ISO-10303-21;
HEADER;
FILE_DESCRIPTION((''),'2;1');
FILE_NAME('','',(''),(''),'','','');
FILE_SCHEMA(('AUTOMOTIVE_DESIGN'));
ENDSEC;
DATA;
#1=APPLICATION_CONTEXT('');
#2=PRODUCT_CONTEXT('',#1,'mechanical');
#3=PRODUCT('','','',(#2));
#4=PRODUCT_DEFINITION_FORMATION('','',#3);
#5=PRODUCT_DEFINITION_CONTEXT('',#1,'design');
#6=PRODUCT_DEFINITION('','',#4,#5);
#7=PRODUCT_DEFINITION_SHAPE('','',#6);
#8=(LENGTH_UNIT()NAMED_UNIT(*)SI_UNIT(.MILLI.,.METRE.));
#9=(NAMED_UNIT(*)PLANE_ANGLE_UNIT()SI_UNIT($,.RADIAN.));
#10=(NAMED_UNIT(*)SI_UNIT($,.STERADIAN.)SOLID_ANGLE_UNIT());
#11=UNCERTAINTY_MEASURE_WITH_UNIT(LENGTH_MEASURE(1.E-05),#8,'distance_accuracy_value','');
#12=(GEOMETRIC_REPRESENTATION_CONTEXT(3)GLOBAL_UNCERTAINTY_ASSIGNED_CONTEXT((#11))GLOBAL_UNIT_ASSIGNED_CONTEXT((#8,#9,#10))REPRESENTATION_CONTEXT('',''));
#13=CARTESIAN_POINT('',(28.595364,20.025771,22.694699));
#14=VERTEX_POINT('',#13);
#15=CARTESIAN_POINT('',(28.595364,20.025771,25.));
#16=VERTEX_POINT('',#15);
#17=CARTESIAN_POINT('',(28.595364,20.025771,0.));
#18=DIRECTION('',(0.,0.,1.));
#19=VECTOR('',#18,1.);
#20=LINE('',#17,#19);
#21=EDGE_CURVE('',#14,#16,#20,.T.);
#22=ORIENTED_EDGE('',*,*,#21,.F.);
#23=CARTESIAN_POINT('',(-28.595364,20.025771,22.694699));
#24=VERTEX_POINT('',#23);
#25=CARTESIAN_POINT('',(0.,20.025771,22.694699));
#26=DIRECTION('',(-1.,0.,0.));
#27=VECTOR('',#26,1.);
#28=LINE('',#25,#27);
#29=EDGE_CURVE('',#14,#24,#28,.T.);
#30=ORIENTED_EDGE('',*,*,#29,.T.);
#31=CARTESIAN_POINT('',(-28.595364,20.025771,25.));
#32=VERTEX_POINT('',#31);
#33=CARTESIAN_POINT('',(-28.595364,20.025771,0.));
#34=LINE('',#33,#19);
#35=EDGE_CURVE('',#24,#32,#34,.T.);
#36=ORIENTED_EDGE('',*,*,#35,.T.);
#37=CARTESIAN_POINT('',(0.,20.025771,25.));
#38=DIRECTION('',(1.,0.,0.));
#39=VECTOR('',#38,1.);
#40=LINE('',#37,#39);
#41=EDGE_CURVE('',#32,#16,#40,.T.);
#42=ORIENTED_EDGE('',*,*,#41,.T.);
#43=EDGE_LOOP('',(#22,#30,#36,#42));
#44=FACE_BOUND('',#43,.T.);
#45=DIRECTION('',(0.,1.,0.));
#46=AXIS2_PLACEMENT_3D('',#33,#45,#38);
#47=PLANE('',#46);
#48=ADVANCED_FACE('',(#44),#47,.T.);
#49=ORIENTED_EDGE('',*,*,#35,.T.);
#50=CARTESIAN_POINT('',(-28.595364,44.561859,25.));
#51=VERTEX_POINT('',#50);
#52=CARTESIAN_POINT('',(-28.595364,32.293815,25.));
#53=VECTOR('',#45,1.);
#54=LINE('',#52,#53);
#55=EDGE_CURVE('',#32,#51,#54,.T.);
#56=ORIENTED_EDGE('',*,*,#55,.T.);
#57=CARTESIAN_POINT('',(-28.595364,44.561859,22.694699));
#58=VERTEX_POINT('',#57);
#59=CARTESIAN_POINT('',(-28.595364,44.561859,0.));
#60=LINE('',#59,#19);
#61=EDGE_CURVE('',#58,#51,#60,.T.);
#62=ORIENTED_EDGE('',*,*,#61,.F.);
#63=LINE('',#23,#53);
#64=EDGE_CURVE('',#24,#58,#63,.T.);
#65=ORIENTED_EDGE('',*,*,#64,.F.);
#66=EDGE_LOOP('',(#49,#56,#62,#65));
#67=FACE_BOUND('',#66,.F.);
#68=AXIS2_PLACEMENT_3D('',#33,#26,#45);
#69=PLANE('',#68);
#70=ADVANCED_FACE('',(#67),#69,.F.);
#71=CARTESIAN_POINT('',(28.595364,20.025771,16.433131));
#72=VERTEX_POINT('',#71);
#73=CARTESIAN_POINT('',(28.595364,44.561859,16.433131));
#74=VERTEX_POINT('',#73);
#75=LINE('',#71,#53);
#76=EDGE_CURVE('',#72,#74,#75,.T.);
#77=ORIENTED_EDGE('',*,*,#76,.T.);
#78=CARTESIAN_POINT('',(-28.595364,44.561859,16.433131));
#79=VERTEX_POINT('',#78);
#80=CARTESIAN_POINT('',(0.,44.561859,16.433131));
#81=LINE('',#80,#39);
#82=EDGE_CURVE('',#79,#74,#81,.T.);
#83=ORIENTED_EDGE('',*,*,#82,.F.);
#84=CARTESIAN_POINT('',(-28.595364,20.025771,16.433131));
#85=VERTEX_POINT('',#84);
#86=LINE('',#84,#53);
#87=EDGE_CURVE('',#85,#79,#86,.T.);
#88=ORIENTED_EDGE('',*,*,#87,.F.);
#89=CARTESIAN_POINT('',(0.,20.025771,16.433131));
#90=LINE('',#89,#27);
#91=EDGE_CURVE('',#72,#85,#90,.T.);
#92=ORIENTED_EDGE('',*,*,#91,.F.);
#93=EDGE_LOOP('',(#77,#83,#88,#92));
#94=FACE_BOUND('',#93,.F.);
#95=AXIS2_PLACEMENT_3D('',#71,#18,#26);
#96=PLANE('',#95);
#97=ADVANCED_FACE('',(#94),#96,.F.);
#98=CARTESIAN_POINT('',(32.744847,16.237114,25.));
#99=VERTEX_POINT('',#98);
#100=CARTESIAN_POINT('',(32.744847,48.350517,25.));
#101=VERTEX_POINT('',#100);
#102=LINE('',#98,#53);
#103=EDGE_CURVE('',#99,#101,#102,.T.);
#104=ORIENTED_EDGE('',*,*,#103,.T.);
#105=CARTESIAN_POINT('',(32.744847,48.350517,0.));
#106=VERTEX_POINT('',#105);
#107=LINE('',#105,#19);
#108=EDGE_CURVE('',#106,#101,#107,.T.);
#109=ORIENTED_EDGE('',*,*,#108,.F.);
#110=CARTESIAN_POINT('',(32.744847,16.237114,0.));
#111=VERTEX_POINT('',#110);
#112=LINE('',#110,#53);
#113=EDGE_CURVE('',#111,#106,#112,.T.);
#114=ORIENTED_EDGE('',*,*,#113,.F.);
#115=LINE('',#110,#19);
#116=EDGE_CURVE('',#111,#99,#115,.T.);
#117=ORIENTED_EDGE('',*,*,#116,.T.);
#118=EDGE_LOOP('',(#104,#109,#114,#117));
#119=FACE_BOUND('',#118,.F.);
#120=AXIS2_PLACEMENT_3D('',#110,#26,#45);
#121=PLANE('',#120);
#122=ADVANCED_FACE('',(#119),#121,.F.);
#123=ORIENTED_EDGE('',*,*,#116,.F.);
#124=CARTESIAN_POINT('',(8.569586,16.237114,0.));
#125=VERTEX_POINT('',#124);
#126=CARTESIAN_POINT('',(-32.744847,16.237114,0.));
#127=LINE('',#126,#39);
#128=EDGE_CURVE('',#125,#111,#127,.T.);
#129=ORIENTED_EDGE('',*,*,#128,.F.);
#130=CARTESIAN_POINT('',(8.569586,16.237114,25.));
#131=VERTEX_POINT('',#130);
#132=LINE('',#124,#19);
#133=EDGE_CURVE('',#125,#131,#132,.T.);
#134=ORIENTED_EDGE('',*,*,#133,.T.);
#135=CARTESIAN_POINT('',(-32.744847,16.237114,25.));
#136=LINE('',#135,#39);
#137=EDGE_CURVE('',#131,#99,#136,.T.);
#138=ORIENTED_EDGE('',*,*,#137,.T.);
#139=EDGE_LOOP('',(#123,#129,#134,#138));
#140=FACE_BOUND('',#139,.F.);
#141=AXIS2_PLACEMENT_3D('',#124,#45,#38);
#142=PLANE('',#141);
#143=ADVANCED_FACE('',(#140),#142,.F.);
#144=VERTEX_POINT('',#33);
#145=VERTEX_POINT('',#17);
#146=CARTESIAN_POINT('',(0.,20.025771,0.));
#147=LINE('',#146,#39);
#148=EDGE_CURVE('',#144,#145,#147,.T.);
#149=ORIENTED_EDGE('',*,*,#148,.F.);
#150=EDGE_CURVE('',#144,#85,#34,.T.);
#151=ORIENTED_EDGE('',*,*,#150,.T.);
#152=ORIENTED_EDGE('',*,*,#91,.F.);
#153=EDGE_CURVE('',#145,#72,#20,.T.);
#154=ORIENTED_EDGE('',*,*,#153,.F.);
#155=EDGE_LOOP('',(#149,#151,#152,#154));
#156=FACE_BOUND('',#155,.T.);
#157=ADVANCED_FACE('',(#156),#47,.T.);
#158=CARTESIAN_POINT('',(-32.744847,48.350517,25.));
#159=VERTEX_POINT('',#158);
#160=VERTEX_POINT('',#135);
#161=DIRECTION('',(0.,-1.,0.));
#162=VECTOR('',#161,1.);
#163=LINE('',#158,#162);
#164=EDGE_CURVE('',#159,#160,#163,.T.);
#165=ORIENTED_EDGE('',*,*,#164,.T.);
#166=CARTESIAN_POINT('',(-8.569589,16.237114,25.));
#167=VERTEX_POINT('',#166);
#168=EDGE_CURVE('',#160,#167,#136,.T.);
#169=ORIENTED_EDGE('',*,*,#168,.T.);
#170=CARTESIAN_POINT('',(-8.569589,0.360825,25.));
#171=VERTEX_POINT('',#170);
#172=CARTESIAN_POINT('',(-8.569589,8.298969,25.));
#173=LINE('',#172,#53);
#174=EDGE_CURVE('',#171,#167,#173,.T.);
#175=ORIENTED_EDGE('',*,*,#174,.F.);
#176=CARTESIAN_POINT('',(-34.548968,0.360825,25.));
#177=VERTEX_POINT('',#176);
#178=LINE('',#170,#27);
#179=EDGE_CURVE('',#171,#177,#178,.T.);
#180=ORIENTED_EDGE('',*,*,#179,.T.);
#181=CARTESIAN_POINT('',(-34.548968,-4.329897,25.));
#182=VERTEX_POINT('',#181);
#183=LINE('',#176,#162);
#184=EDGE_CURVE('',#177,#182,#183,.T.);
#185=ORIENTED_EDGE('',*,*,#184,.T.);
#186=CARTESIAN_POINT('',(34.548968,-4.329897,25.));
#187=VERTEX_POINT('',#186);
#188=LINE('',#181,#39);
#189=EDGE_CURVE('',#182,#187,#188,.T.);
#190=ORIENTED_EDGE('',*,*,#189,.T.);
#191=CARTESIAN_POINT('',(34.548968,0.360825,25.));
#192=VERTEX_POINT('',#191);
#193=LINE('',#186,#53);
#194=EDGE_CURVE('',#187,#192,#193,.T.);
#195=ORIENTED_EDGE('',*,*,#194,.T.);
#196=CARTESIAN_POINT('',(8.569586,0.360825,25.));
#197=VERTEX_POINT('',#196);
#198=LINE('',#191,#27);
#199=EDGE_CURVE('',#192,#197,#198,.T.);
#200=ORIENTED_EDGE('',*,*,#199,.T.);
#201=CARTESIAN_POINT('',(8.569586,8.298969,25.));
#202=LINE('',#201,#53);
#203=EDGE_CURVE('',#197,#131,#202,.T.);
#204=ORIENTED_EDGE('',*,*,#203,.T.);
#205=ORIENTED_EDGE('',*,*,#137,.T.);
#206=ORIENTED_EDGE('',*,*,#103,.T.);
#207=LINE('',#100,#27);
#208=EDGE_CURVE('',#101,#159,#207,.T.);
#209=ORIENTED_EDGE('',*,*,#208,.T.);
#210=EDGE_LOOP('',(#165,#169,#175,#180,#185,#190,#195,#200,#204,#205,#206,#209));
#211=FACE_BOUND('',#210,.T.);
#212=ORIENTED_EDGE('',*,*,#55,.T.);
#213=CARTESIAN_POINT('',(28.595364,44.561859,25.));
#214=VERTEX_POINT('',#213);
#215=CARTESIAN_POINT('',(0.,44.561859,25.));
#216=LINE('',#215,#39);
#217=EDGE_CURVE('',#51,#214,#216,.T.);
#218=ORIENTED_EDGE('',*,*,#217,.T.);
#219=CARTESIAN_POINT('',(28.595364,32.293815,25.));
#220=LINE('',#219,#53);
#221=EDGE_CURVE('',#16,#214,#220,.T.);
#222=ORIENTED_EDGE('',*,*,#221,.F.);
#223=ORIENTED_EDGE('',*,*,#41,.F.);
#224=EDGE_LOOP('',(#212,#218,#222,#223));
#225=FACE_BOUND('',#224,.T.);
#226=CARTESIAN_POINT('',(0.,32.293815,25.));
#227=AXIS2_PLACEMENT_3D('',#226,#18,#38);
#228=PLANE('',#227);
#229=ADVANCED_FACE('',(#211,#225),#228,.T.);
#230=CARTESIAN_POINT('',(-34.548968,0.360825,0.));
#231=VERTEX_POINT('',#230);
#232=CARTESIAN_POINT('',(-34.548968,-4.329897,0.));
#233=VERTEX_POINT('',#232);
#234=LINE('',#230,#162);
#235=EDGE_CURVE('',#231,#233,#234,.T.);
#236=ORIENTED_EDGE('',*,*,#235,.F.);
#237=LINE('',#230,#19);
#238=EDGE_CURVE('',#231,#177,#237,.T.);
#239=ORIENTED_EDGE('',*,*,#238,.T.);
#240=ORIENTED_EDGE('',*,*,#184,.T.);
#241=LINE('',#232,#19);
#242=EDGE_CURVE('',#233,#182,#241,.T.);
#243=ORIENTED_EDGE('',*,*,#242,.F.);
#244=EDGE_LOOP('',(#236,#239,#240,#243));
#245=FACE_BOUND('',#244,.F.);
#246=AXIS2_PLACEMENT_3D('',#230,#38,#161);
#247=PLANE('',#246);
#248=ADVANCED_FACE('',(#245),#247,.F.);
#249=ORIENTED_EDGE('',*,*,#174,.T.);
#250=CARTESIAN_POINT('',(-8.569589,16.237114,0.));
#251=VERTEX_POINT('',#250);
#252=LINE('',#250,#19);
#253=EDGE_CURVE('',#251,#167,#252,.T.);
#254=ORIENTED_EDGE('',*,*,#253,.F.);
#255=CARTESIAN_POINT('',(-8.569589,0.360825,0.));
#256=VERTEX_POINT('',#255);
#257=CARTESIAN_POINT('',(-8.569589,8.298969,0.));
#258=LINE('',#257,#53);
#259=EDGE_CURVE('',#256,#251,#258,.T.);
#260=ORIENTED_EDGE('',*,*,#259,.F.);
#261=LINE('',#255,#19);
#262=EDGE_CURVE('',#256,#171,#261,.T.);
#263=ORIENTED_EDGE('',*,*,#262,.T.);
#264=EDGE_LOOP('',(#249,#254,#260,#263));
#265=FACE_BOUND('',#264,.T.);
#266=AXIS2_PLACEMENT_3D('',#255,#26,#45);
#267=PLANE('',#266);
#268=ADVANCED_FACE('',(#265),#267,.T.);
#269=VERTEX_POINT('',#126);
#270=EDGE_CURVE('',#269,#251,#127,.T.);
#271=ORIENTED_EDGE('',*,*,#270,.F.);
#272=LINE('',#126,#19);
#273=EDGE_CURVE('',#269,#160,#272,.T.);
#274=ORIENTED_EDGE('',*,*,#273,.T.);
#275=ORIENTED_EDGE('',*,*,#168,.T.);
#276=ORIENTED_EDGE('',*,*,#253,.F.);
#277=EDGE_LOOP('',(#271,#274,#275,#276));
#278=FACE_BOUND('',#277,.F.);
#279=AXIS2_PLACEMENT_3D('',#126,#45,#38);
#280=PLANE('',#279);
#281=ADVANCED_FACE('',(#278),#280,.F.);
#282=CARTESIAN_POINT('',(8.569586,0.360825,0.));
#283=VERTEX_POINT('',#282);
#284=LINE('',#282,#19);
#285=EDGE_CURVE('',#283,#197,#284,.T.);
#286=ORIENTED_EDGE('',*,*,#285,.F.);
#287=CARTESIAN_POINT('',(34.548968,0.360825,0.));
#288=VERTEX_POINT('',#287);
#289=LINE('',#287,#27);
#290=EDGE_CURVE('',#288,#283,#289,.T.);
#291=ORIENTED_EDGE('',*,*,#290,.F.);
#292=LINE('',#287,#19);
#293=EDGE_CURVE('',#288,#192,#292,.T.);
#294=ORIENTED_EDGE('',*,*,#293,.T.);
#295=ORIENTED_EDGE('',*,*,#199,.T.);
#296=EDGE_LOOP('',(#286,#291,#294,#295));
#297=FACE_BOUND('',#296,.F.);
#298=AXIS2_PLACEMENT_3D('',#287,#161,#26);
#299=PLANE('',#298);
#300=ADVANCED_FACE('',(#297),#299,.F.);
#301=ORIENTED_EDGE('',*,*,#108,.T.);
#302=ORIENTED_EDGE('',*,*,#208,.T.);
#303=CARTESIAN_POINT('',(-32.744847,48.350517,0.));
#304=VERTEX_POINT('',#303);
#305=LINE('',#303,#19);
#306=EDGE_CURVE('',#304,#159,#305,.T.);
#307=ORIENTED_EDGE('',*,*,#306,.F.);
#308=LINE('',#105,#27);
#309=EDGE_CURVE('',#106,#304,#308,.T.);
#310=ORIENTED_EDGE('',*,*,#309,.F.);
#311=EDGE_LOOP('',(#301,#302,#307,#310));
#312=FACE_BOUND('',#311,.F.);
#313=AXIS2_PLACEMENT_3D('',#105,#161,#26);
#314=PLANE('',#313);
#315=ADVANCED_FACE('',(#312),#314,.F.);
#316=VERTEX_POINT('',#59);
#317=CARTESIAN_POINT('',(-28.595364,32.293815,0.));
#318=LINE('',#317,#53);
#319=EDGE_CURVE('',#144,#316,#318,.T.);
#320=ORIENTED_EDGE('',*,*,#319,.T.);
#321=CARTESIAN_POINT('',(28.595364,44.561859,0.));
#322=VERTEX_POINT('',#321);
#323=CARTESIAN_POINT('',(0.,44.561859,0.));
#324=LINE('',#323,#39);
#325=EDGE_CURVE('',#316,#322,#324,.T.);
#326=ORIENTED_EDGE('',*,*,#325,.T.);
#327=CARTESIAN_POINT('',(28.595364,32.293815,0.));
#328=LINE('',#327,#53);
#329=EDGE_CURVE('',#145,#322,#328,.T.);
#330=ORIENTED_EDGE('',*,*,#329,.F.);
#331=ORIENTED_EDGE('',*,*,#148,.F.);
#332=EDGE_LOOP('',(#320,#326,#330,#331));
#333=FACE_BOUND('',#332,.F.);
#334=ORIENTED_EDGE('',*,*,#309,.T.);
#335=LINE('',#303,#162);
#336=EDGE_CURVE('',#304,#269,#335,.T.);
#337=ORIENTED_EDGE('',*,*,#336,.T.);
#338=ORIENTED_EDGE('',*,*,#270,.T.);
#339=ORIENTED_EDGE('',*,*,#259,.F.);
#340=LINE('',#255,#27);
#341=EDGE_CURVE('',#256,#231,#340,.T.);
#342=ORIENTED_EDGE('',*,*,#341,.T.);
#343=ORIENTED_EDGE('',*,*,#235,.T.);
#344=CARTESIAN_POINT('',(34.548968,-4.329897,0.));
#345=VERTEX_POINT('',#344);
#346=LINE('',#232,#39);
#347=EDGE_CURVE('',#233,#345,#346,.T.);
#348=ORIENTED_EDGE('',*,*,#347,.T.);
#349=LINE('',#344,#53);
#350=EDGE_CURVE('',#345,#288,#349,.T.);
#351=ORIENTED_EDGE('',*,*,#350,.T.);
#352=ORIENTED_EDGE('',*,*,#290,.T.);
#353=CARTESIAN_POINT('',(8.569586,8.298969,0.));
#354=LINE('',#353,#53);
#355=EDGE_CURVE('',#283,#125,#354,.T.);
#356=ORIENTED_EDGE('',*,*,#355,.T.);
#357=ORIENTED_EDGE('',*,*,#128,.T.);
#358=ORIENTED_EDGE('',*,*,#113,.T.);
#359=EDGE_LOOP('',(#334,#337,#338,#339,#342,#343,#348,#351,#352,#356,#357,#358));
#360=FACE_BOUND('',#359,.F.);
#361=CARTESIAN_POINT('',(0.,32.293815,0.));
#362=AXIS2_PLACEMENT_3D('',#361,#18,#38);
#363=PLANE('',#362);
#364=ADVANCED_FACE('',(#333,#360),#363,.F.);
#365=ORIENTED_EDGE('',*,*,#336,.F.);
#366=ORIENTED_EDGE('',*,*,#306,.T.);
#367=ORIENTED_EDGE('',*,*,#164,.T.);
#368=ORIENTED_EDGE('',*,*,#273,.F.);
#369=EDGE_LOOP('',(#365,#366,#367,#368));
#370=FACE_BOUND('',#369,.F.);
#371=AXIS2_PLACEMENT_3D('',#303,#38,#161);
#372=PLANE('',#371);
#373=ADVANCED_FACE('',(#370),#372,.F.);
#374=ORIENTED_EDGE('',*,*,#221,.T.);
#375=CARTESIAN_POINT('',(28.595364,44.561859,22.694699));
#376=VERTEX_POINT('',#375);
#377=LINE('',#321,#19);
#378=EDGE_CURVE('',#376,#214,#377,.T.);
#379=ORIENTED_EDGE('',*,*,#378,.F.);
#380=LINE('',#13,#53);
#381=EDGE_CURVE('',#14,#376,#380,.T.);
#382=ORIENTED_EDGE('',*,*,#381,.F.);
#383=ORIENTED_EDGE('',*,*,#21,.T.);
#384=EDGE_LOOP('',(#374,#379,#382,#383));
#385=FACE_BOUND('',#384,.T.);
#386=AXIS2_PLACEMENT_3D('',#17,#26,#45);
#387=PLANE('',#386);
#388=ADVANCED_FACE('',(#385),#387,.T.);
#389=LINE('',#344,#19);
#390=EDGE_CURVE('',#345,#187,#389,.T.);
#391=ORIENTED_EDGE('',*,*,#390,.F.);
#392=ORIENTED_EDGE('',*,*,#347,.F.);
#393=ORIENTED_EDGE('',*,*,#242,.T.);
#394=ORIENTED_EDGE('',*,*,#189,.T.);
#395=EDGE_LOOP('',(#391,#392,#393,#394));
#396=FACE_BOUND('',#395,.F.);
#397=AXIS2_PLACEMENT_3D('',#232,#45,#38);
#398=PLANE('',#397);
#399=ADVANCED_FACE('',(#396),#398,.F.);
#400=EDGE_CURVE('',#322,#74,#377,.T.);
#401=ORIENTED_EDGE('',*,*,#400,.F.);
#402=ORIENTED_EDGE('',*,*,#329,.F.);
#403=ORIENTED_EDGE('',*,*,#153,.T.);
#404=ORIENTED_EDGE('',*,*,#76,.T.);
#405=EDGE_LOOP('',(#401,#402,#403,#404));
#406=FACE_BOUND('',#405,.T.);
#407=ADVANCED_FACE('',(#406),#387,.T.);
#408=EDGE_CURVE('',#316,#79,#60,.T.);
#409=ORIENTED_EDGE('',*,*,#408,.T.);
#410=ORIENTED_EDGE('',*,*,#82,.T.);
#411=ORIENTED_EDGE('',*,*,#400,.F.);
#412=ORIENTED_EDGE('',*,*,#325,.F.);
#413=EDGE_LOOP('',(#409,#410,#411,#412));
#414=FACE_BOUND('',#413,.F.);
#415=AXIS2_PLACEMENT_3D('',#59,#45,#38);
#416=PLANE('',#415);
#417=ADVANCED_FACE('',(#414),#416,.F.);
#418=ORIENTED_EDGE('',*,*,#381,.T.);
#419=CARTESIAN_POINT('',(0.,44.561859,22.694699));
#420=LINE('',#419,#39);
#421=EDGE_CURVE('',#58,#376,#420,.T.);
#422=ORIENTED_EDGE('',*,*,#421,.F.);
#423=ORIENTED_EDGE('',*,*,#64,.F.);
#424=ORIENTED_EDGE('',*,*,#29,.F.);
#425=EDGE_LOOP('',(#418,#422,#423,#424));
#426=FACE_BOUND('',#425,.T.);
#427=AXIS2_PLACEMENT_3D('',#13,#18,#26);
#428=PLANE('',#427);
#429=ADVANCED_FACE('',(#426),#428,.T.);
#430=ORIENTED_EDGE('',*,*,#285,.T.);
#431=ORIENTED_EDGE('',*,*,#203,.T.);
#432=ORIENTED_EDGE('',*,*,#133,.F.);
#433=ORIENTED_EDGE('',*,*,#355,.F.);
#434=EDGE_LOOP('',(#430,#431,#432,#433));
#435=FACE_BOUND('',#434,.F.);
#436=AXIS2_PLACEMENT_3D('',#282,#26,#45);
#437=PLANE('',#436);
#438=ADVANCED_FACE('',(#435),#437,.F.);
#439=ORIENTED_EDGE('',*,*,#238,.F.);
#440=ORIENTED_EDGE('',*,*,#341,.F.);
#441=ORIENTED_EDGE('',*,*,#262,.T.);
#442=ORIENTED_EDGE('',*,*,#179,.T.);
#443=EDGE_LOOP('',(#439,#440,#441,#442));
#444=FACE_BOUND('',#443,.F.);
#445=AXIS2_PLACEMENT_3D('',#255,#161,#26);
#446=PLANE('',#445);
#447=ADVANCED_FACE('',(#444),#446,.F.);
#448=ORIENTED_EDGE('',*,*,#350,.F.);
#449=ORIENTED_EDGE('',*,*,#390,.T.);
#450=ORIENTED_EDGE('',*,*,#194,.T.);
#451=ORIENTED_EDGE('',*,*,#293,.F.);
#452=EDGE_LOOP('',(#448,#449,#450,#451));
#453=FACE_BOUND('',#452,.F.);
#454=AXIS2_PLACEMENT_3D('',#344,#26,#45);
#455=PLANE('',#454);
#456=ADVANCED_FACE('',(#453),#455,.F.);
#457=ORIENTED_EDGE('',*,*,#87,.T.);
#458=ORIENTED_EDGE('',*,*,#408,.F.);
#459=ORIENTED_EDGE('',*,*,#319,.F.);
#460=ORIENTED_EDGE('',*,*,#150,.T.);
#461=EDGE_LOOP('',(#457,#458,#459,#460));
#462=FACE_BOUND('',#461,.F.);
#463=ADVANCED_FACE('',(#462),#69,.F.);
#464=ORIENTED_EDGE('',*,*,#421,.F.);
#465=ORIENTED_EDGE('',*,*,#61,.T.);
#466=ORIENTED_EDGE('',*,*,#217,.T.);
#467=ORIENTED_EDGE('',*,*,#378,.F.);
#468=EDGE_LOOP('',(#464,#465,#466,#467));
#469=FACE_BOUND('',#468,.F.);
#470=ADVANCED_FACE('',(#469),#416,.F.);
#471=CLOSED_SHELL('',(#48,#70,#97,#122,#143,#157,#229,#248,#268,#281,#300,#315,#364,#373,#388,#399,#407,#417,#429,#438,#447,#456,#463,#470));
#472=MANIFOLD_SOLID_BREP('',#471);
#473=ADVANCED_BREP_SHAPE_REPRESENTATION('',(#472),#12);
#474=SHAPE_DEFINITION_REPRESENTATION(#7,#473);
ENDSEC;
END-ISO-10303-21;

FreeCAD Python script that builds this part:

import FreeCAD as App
import Part
import Sketcher

V = App.Vector


def add_polygon(sketch, points):
    """Adds a closed chain of lines whose ends are joined by coincident constraints."""
    first, n = sketch.GeometryCount, len(points)
    for a, b in zip(points, points[1:] + points[:1]):
        sketch.addGeometry(Part.LineSegment(App.Vector(*a, 0), App.Vector(*b, 0)), False)
    for i in range(n):
        sketch.addConstraint(Sketcher.Constraint("Coincident", first + i, 2, first + (i + 1) % n, 1))

doc = App.newDocument("Part")
params = doc.addObject("Spreadsheet::Sheet", "Params")
for row, (alias, value) in enumerate([
    ("pad1_length", "25 mm"),
    ("pad2_length", "25.4 mm"),
], start=1):
    params.set(f"A{row}", alias)
    params.set(f"B{row}", "=" + value)
    params.setAlias(f"B{row}", alias)

body = doc.addObject("PartDesign::Body", "Body")

# Sketch on XY plane
sketch1 = body.newObject("Sketcher::SketchObject", "Sketch")
sketch1.AttachmentSupport = (doc.getObject("XY_Plane"), [""])
sketch1.MapMode = "FlatFace"
add_polygon(sketch1, [(32.744847, 16.237114), (32.744847, 48.350517), (-32.744847, 48.350517), (-32.744847, 16.237114), (-8.569589, 16.237114), (-8.569589, 0.360825), (-34.548968, 0.360825), (-34.548968, -4.329897), (34.548968, -4.329897), (34.548968, 0.360825), (8.569586, 0.360825), (8.569586, 16.237114)])  # lines 0-11
add_polygon(sketch1, [(28.595364, 20.025771), (-28.595364, 20.025771), (-28.595364, 44.561859), (28.595364, 44.561859)])  # lines 12-15
sketch1.addConstraint(Sketcher.Constraint("Vertical", 0))
sketch1.addConstraint(Sketcher.Constraint("Horizontal", 1))
sketch1.addConstraint(Sketcher.Constraint("Vertical", 2))
sketch1.addConstraint(Sketcher.Constraint("Horizontal", 3))
sketch1.addConstraint(Sketcher.Constraint("Vertical", 4))
sketch1.addConstraint(Sketcher.Constraint("Horizontal", 5))
sketch1.addConstraint(Sketcher.Constraint("Vertical", 6))
sketch1.addConstraint(Sketcher.Constraint("Horizontal", 7))
sketch1.addConstraint(Sketcher.Constraint("Vertical", 8))
sketch1.addConstraint(Sketcher.Constraint("Horizontal", 9))
sketch1.addConstraint(Sketcher.Constraint("Vertical", 10))
sketch1.addConstraint(Sketcher.Constraint("Horizontal", 11))
sketch1.addConstraint(Sketcher.Constraint("Horizontal", 12))
sketch1.addConstraint(Sketcher.Constraint("Vertical", 13))
sketch1.addConstraint(Sketcher.Constraint("Horizontal", 14))
sketch1.addConstraint(Sketcher.Constraint("Vertical", 15))
sketch1.addConstraint(Sketcher.Constraint("Symmetric", 5, 2, 8, 2, -2))
sketch1.addConstraint(Sketcher.Constraint("Symmetric", 3, 2, 10, 2, -2))
sketch1.addConstraint(Sketcher.Constraint("DistanceX", 3, 1, 3, 2, 24.175258))
sketch1.addConstraint(Sketcher.Constraint("DistanceX", 5, 2, 5, 1, 25.979379))
sketch1.addConstraint(Sketcher.Constraint("DistanceX", 11, 1, 11, 2, 24.175261))
sketch1.addConstraint(Sketcher.Constraint("DistanceY", 4, 2, 4, 1, 15.876289))
sketch1.addConstraint(Sketcher.Constraint("DistanceY", 6, 2, 6, 1, 4.690722))
sketch1.addConstraint(Sketcher.Constraint("DistanceY", 13, 1, 13, 2, 24.536088))
sketch1.addConstraint(Sketcher.Constraint("DistanceX", 1, 2, 1, 1, 65.489694))
sketch1.addConstraint(Sketcher.Constraint("DistanceX", 12, 2, 12, 1, 57.190727))
sketch1.addConstraint(Sketcher.Constraint("DistanceY", 0, 1, 0, 2, 32.113403))
sketch1.addConstraint(Sketcher.Constraint("DistanceY", -1, 1, 12, 2, 20.025771))
sketch1.addConstraint(Sketcher.Constraint("DistanceY", 6, 2, 12, 2, 24.355668))
sketch1.addConstraint(Sketcher.Constraint("DistanceX", 12, 2, -1, 1, 28.595364))
pad1 = body.newObject("PartDesign::Pad", "Pad")
pad1.Profile = sketch1
pad1.setExpression("Length", "Params.pad1_length")

# Sketch on XZ plane
sketch2 = body.newObject("Sketcher::SketchObject", "Sketch001")
sketch2.AttachmentSupport = (doc.getObject("XZ_Plane"), [""])
sketch2.MapMode = "FlatFace"
sketch2.AttachmentOffset = App.Placement(V(0, 0, -20.025771), App.Rotation())
add_polygon(sketch2, [(28.595364, 22.694699), (28.595364, 16.433131), (-28.595364, 16.433131), (-28.595364, 22.694699)])  # lines 0-3
sketch2.addConstraint(Sketcher.Constraint("Vertical", 0))
sketch2.addConstraint(Sketcher.Constraint("Horizontal", 1))
sketch2.addConstraint(Sketcher.Constraint("Vertical", 2))
sketch2.addConstraint(Sketcher.Constraint("Horizontal", 3))
sketch2.addConstraint(Sketcher.Constraint("DistanceY", 0, 2, 0, 1, 6.261569))
sketch2.addConstraint(Sketcher.Constraint("DistanceY", -1, 1, 2, 2, 22.694699))
sketch2.addConstraint(Sketcher.Constraint("DistanceX", 1, 2, 1, 1, 57.190727))
sketch2.addConstraint(Sketcher.Constraint("DistanceX", -1, 1, 0, 2, 28.595364))
pad2 = body.newObject("PartDesign::Pad", "Pad001")
pad2.Profile = sketch2
pad2.setExpression("Length", "Params.pad2_length")
pad2.Reversed = True

doc.recompute()
